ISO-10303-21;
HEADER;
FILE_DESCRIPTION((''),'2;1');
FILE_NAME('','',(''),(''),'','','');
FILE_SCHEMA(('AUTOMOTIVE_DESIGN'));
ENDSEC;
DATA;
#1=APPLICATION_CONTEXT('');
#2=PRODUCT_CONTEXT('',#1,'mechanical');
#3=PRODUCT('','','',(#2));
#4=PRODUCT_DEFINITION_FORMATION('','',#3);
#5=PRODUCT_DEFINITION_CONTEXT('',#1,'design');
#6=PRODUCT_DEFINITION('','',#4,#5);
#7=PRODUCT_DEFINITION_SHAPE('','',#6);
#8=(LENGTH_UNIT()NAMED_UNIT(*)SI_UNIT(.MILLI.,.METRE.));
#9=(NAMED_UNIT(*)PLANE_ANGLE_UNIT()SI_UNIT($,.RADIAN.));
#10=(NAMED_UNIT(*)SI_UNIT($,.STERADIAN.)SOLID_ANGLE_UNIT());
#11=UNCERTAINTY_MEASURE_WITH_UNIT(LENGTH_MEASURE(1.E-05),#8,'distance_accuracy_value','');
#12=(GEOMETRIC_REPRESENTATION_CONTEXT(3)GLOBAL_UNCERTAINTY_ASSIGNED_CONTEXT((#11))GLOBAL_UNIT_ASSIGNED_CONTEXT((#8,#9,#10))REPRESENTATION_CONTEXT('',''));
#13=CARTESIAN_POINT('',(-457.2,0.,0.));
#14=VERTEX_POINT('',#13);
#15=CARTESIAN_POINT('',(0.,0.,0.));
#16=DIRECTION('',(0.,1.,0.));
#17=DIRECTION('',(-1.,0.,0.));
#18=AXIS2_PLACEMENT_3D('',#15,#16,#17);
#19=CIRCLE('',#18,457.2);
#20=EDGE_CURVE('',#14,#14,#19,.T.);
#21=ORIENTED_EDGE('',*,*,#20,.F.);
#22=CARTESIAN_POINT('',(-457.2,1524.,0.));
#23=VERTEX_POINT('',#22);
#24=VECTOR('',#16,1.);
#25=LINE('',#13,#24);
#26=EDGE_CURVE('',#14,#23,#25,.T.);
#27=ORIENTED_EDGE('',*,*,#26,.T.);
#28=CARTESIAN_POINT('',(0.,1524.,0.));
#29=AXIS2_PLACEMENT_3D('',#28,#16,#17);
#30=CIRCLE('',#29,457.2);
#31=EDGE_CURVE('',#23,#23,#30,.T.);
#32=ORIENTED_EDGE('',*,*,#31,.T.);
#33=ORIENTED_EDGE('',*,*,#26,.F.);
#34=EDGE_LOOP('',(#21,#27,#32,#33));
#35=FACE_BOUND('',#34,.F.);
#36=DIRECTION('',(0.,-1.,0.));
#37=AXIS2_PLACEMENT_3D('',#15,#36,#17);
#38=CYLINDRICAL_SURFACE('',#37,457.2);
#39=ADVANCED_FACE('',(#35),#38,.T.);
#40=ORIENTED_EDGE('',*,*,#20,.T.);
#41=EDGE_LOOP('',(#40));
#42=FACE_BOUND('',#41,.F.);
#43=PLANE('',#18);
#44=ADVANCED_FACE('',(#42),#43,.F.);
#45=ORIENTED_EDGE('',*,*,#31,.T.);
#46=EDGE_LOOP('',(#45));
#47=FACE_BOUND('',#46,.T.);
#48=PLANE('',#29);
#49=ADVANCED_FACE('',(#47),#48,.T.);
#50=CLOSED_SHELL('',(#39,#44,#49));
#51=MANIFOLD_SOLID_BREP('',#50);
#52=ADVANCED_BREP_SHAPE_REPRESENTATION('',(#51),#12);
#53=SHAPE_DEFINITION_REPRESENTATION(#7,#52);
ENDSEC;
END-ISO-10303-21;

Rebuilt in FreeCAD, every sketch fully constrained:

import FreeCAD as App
import Part
import Sketcher
from FreeCAD import Vector
Q = App.Units.Quantity

doc = App.newDocument("Part")
params = doc.addObject("Spreadsheet::Sheet", "Params")
for row, (alias, value) in enumerate([
    ("sketch1_diameter", "36 in"),
    ("pad1_length", "60 in"),
], start=1):
    params.set(f"A{row}", alias)
    params.set(f"B{row}", "=" + value)
    params.setAlias(f"B{row}", alias)

body = doc.addObject("PartDesign::Body", "Body")

# Sketch on XZ plane
sketch1 = body.newObject("Sketcher::SketchObject", "Sketch")
sketch1.AttachmentSupport = (doc.getObject("XZ_Plane"), [""])
sketch1.MapMode = "FlatFace"
sketch1.addGeometry(Part.Circle(Vector(0, 0, 0), Vector(0, 0, 1), 457), False)
sketch1.addConstraint([
    Sketcher.Constraint("Coincident", 0, 3, -1, 1),
    Sketcher.Constraint("Diameter", 0, Q("36 in")),
])
sketch1.setExpression("Constraints[1]", "Params.sketch1_diameter")
pad1 = body.newObject("PartDesign::Pad", "Pad")
pad1.Profile = sketch1
pad1.setExpression("Length", "Params.pad1_length")
pad1.Reversed = True

doc.recompute()
